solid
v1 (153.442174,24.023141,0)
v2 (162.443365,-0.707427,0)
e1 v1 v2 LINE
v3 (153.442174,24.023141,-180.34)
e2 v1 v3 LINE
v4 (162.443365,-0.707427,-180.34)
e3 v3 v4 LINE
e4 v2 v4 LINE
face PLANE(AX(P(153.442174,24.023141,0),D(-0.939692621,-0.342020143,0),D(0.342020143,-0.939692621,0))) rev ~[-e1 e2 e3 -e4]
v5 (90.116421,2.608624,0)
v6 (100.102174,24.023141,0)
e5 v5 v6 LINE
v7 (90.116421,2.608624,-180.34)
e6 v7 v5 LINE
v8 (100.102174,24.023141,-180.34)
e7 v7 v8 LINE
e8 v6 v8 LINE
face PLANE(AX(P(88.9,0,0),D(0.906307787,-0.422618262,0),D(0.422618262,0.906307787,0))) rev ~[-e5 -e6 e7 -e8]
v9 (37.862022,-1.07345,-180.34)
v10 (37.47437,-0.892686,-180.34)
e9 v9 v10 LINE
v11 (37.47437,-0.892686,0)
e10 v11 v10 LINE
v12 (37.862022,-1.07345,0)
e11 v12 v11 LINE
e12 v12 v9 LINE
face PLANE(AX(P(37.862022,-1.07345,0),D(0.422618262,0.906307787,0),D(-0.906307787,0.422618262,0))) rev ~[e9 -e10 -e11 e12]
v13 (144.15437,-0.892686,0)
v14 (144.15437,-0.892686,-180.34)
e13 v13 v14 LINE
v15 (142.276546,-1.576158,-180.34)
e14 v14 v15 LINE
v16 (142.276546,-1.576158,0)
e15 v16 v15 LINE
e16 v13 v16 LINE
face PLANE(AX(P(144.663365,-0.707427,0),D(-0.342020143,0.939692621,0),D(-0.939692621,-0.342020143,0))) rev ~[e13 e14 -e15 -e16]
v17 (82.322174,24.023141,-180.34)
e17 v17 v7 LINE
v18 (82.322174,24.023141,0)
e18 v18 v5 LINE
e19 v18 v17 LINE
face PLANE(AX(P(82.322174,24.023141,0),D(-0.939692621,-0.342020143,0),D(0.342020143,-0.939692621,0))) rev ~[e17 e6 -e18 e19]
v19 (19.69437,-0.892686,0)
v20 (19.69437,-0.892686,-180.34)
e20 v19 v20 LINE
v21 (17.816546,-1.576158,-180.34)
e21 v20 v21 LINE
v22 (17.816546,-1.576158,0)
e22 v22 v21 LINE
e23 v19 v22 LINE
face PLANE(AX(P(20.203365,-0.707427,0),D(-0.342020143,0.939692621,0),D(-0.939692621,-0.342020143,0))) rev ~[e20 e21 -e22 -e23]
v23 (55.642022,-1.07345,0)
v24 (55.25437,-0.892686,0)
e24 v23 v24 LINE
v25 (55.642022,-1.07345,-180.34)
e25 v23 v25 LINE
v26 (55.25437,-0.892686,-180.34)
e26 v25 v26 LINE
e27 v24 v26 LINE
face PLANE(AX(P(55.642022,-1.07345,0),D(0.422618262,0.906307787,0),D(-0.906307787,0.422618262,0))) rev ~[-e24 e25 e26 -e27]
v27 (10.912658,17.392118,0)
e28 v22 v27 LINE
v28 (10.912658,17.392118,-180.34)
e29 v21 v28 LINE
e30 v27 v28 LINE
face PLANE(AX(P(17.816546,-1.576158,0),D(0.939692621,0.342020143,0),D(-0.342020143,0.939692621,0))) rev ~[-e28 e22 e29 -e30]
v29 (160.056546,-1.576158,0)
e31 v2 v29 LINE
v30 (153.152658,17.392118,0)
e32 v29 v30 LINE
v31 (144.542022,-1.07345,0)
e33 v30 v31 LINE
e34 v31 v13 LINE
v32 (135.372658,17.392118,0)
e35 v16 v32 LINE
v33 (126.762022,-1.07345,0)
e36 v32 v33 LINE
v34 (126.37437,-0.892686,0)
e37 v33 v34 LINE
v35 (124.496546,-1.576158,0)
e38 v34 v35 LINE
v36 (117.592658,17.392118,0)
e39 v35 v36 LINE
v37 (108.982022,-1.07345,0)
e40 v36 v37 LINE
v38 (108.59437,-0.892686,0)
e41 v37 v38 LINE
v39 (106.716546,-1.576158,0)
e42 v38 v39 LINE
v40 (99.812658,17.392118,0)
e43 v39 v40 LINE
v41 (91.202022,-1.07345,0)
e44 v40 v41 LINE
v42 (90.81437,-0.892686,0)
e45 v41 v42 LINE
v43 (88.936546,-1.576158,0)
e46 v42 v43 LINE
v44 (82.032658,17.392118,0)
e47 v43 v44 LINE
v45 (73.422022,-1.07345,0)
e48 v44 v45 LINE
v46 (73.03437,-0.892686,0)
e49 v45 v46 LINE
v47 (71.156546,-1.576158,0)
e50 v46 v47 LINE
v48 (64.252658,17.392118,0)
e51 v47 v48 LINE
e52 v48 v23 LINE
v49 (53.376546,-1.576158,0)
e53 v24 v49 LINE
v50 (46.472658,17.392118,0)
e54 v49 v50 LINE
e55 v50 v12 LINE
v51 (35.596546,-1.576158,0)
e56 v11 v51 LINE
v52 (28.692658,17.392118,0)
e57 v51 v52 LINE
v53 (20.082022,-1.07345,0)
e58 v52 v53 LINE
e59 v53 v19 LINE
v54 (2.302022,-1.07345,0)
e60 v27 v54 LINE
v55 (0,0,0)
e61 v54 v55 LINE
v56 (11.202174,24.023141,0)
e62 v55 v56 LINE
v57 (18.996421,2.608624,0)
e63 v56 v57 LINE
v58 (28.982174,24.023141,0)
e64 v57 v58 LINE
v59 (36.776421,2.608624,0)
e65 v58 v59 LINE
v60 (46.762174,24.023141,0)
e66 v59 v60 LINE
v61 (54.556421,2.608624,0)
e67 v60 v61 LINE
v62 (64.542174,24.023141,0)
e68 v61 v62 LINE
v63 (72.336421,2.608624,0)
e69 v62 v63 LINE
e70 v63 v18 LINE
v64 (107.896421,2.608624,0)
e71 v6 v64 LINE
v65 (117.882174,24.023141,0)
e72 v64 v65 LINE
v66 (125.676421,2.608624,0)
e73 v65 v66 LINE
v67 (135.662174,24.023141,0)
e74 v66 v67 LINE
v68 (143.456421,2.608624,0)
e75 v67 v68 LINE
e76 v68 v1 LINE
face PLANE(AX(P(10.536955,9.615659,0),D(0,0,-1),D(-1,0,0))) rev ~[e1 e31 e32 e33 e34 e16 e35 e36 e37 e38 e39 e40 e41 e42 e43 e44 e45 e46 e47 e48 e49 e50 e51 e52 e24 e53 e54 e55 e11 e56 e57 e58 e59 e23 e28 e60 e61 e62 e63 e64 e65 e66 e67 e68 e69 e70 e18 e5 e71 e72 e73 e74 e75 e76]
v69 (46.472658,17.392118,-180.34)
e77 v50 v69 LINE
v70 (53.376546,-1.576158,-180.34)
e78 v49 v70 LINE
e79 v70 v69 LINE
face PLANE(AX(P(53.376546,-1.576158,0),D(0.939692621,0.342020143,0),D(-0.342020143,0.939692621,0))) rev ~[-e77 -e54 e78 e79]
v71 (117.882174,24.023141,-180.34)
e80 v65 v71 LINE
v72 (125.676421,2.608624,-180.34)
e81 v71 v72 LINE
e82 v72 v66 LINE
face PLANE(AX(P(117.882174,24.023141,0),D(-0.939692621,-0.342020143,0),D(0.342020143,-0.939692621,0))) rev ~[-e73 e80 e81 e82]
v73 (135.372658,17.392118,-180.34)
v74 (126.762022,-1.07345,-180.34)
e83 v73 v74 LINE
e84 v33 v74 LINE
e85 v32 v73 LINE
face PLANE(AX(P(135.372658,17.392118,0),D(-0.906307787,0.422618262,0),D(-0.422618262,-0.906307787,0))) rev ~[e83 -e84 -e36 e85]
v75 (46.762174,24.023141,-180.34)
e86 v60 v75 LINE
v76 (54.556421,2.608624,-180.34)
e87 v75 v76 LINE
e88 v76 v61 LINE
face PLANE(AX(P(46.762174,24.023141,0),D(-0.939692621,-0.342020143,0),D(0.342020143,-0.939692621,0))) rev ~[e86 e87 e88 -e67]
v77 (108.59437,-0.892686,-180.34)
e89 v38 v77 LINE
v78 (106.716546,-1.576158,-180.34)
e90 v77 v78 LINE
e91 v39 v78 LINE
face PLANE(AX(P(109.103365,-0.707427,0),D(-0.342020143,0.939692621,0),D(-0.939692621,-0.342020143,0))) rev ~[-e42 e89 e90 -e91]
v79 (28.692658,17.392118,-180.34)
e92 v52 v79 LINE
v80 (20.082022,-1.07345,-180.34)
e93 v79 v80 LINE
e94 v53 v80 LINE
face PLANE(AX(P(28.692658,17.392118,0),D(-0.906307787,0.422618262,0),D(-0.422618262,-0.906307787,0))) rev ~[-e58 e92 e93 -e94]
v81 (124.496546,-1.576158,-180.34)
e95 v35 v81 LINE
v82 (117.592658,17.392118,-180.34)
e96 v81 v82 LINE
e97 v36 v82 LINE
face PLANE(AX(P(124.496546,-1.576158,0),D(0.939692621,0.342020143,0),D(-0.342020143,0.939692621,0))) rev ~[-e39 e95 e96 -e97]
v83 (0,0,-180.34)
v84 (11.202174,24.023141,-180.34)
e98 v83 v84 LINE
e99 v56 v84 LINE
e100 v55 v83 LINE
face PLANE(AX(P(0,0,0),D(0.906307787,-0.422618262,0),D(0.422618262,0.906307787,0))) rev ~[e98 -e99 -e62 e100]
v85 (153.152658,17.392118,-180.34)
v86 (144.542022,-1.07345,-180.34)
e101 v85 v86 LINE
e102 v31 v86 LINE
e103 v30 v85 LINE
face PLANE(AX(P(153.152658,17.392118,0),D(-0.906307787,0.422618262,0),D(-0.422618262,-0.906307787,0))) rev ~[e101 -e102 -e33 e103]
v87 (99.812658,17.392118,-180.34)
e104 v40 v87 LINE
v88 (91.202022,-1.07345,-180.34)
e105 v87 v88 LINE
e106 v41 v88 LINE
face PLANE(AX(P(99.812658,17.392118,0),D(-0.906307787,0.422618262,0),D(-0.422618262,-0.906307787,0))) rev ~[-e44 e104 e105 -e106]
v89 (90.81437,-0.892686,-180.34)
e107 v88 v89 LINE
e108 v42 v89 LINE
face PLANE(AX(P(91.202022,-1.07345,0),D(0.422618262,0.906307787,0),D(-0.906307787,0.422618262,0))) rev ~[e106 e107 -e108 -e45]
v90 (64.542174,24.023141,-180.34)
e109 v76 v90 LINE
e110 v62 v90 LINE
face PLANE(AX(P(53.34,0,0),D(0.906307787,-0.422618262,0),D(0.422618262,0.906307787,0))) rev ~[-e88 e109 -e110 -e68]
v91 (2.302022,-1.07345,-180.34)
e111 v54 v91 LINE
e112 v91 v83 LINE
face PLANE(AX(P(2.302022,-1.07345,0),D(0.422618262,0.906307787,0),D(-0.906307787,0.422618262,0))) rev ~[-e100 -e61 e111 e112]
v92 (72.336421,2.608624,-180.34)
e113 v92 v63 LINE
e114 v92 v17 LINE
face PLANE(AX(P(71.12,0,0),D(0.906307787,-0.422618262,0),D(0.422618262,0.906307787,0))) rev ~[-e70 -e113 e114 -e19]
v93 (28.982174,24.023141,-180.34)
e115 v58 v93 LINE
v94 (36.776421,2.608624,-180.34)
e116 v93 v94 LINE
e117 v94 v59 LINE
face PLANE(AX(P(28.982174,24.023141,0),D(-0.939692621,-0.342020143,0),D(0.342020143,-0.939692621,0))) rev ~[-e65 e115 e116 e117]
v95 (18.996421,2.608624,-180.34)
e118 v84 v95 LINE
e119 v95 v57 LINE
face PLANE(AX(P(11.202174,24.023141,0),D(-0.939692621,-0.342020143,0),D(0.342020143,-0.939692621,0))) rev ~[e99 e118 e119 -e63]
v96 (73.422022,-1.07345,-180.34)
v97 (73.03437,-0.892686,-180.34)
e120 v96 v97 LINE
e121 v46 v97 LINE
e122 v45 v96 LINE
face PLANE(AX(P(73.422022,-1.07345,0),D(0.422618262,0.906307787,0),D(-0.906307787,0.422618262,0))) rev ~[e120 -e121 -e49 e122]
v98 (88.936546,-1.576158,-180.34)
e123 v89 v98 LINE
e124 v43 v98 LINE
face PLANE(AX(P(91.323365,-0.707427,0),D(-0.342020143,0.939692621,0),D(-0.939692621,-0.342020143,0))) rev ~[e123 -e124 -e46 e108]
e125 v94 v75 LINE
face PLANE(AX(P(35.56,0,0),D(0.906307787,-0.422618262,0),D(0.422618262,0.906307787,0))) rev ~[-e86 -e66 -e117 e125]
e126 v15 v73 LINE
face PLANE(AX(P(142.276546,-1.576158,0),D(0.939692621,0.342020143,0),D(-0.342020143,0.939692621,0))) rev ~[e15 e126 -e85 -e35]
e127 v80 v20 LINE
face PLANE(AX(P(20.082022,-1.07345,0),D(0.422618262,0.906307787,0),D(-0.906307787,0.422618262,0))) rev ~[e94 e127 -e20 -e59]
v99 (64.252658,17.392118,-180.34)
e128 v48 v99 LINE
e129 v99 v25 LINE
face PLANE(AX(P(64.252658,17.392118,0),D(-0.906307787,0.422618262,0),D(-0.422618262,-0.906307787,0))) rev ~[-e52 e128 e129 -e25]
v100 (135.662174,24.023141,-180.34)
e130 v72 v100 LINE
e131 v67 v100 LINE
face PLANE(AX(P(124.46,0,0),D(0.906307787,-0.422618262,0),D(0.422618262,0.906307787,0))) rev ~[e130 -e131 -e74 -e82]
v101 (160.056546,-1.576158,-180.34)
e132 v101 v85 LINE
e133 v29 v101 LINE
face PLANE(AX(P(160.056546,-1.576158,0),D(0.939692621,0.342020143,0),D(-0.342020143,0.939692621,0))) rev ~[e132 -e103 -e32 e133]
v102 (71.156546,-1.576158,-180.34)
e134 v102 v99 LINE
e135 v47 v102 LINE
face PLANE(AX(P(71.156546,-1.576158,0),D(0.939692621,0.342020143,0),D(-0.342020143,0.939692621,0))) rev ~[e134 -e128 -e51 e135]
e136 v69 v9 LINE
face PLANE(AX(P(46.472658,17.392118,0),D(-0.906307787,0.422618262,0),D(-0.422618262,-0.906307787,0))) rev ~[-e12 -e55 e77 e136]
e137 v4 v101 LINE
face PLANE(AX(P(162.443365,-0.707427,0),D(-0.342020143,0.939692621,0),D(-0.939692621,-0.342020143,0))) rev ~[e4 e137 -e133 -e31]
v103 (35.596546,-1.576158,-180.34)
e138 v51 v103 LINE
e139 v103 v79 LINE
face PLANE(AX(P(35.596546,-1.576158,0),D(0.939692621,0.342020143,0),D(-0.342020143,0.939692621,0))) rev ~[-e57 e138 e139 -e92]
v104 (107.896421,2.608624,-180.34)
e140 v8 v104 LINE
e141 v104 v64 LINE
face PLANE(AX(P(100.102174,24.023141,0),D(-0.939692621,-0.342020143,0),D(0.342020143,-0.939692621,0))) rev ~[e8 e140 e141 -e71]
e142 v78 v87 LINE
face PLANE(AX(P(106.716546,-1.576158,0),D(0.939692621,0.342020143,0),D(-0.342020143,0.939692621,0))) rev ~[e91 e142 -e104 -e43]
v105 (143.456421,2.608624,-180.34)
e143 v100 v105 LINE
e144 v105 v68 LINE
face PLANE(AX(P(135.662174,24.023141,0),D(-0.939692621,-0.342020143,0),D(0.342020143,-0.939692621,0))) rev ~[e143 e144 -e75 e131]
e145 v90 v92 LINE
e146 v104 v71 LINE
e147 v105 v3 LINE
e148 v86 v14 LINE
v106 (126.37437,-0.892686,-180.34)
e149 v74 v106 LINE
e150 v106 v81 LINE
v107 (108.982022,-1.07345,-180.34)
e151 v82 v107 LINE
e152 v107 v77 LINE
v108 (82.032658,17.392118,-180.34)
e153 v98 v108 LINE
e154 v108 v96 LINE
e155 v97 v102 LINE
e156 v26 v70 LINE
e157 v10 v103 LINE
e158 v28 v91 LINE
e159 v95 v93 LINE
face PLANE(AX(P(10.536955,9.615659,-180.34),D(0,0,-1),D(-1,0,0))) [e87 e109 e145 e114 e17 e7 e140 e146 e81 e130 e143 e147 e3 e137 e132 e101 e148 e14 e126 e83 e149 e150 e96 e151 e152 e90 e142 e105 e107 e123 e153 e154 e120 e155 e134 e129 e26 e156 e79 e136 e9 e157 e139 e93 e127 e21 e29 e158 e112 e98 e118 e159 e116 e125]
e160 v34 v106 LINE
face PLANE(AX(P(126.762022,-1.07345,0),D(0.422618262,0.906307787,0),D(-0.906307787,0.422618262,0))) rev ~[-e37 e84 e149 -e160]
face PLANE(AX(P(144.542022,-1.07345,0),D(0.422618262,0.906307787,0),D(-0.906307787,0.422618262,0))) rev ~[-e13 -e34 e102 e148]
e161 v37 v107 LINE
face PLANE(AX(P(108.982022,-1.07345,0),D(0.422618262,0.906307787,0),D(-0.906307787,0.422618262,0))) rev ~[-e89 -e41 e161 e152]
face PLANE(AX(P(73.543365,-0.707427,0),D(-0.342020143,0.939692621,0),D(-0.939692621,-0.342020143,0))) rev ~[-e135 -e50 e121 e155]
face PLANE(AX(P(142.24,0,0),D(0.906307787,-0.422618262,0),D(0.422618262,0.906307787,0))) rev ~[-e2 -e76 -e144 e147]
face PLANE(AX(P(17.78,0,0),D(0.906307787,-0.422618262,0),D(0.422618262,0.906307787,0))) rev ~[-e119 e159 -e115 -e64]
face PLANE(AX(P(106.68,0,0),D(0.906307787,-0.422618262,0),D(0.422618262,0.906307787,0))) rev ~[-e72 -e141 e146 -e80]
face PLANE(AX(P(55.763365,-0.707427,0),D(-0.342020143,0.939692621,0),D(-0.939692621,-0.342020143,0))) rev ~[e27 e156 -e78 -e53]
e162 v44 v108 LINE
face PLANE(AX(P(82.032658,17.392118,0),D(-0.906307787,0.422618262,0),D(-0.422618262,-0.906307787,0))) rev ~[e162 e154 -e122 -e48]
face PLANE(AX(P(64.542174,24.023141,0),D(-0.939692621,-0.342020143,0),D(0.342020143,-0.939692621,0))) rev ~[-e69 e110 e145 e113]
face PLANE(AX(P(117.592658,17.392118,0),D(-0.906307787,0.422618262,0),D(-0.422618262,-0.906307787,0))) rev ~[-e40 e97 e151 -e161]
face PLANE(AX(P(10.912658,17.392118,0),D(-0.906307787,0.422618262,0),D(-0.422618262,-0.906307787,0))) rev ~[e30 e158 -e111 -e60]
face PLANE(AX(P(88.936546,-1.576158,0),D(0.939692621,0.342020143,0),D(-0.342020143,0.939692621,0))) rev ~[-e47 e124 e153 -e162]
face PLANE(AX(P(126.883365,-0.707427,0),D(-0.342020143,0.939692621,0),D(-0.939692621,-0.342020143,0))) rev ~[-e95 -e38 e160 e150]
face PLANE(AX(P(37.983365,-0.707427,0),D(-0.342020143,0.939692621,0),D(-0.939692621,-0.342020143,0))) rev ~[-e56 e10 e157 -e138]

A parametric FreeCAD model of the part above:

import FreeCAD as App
import Part
import Sketcher

V = App.Vector
Q = App.Units.Quantity


def add_polygon(sketch, points):
    """Adds a closed chain of lines whose ends are joined by coincident constraints."""
    first, n = sketch.GeometryCount, len(points)
    for a, b in zip(points, points[1:] + points[:1]):
        sketch.addGeometry(Part.LineSegment(App.Vector(*a, 0), App.Vector(*b, 0)), False)
    for i in range(n):
        sketch.addConstraint(Sketcher.Constraint("Coincident", first + i, 2, first + (i + 1) % n, 1))

doc = App.newDocument("Part")
params = doc.addObject("Spreadsheet::Sheet", "Params")
for row, (alias, value) in enumerate([
    ("sketch1_length", "0.1 in"),
    ("pad1_length", "7.1 in"),
    ("linearpattern_pitch", "0.7 in"),
], start=1):
    params.set(f"A{row}", alias)
    params.set(f"B{row}", "=" + value)
    params.setAlias(f"B{row}", alias)

body = doc.addObject("PartDesign::Body", "Body")

# Sketch on XY plane
sketch1 = body.newObject("Sketcher::SketchObject", "Sketch")
sketch1.AttachmentSupport = (doc.getObject("XY_Plane"), [""])
sketch1.MapMode = "FlatFace"
add_polygon(sketch1, [(11.2, 24), (0, 0), (2.3, -1.1), (10.9, 17.4), (17.8, -1.6), (20.2, -0.7)])  # lines 0-5
sketch1.addConstraint([
    Sketcher.Constraint("Coincident", 0, 2, -1, 1),
    Sketcher.Constraint("Perpendicular", 0, 1),
    Sketcher.Constraint("Perpendicular", 1, 2),
    Sketcher.Constraint("Perpendicular", 3, 4),
    Sketcher.Constraint("Perpendicular", 4, 5),
    Sketcher.Constraint("Equal", 1, 4),
    Sketcher.Constraint("Angle", 0, Q("-115 deg")),
    Sketcher.Constraint("Angle", 3, Q("-70 deg")),
    Sketcher.Constraint("Distance", 1, Q("0.1 in")),
    Sketcher.Constraint("Distance", 2, Q("20.3745 mm")),
    Sketcher.Constraint("DistanceY", 3, 2, 5, 2, Q("25.599299 mm")),
])
sketch1.setExpression("Constraints[14]", "Params.sketch1_length")
pad1 = body.newObject("PartDesign::Pad", "Pad")
pad1.Profile = sketch1
pad1.setExpression("Length", "Params.pad1_length")
pad1.Reversed = True
doc.recompute()

linearpattern = body.newObject("PartDesign::LinearPattern", "LinearPattern")
linearpattern.Originals = [pad1]
linearpattern.Direction = (doc.getObject("X_Axis"), [""])
linearpattern.Mode = "offset"
linearpattern.setExpression("Offset", "Params.linearpattern_pitch")
linearpattern.Occurrences = 9
body.Tip = linearpattern

doc.recompute()
